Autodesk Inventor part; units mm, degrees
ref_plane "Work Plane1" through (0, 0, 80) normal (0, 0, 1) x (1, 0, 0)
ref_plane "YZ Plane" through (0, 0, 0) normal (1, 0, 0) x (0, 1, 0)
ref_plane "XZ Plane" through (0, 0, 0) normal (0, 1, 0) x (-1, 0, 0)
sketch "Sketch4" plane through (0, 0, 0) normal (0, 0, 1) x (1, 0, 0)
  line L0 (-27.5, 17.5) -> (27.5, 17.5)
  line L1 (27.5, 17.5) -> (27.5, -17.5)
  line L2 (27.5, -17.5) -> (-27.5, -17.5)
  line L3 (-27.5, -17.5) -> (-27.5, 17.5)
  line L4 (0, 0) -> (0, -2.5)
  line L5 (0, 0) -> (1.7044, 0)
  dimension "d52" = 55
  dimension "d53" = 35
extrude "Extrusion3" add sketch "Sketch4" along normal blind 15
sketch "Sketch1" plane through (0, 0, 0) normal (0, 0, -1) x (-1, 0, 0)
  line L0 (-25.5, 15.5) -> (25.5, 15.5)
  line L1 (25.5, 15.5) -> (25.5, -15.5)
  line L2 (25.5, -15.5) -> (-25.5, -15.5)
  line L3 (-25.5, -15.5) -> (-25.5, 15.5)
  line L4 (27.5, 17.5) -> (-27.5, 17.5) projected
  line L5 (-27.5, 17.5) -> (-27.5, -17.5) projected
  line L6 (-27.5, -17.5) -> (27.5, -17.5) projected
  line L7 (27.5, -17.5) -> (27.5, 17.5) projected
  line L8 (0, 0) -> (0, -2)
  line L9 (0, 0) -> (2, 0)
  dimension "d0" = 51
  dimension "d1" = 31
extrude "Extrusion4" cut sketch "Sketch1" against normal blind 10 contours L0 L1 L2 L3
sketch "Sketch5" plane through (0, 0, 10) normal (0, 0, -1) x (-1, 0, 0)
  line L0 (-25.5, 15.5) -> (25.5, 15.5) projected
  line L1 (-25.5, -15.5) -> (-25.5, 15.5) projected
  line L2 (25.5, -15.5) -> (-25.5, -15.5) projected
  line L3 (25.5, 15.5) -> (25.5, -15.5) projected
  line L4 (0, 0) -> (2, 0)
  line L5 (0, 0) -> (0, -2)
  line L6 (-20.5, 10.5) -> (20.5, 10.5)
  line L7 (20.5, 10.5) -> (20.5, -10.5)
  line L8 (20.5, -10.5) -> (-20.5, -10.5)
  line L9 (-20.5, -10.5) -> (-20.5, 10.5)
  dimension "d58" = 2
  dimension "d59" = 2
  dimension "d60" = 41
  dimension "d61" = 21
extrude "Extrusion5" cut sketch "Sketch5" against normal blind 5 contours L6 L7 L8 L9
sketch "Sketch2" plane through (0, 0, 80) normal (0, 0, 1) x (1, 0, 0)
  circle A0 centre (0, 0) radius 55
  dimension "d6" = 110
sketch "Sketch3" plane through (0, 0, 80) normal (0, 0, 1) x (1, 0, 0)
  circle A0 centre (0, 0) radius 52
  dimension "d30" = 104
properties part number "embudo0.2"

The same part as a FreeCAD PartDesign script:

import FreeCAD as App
import Part
import Sketcher

V = App.Vector


def add_polygon(sketch, points):
    """Adds a closed chain of lines whose ends are joined by coincident constraints."""
    first, n = sketch.GeometryCount, len(points)
    for a, b in zip(points, points[1:] + points[:1]):
        sketch.addGeometry(Part.LineSegment(App.Vector(*a, 0), App.Vector(*b, 0)), False)
    for i in range(n):
        sketch.addConstraint(Sketcher.Constraint("Coincident", first + i, 2, first + (i + 1) % n, 1))

doc = App.newDocument("Part")
body = doc.addObject("PartDesign::Body", "Body")

# Sketch on XY plane
sketch1 = body.newObject("Sketcher::SketchObject", "Sketch")
sketch1.AttachmentSupport = (doc.getObject("XY_Plane"), [""])
sketch1.MapMode = "FlatFace"
add_polygon(sketch1, [(27.5, 17.5), (-27.5, 17.5), (-27.5, -17.5), (27.5, -17.5)])  # lines 0-3
sketch1.addConstraint(Sketcher.Constraint("Horizontal", 0))
sketch1.addConstraint(Sketcher.Constraint("Vertical", 1))
sketch1.addConstraint(Sketcher.Constraint("Horizontal", 2))
sketch1.addConstraint(Sketcher.Constraint("Vertical", 3))
sketch1.addConstraint(Sketcher.Constraint("Symmetric", 0, 2, 2, 2, -1, 1))
sketch1.addConstraint(Sketcher.Constraint("DistanceX", 0, 2, 0, 1, 55.0))
sketch1.addConstraint(Sketcher.Constraint("DistanceY", 1, 2, 1, 1, 35.0))
pad1 = body.newObject("PartDesign::Pad", "Pad")
pad1.Profile = sketch1
pad1.Length = 15

# Sketch on XY plane
sketch2 = body.newObject("Sketcher::SketchObject", "Sketch001")
sketch2.AttachmentSupport = (doc.getObject("XY_Plane"), [""])
sketch2.MapMode = "FlatFace"
add_polygon(sketch2, [(-25.5, 15.5), (25.5, 15.5), (25.5, -15.5), (-25.5, -15.5)])  # lines 0-3
sketch2.addConstraint(Sketcher.Constraint("Horizontal", 0))
sketch2.addConstraint(Sketcher.Constraint("Vertical", 1))
sketch2.addConstraint(Sketcher.Constraint("Horizontal", 2))
sketch2.addConstraint(Sketcher.Constraint("Vertical", 3))
sketch2.addConstraint(Sketcher.Constraint("Symmetric", 0, 2, 2, 2, -1, 1))
sketch2.addConstraint(Sketcher.Constraint("DistanceX", 0, 1, 0, 2, 51.0))
sketch2.addConstraint(Sketcher.Constraint("DistanceY", 1, 2, 1, 1, 31.0))
pocket1 = body.newObject("PartDesign::Pocket", "Pocket")
pocket1.Profile = sketch2
pocket1.Length = 10
pocket1.Reversed = True

# Sketch on XY plane
sketch3 = body.newObject("Sketcher::SketchObject", "Sketch002")
sketch3.AttachmentSupport = (doc.getObject("XY_Plane"), [""])
sketch3.MapMode = "FlatFace"
sketch3.AttachmentOffset = App.Placement(V(0, 0, 10), App.Rotation())
add_polygon(sketch3, [(-20.5, 10.5), (20.5, 10.5), (20.5, -10.5), (-20.5, -10.5)])  # lines 0-3
sketch3.addConstraint(Sketcher.Constraint("Horizontal", 0))
sketch3.addConstraint(Sketcher.Constraint("Vertical", 1))
sketch3.addConstraint(Sketcher.Constraint("Horizontal", 2))
sketch3.addConstraint(Sketcher.Constraint("Vertical", 3))
sketch3.addConstraint(Sketcher.Constraint("Symmetric", 0, 2, 2, 2, -1, 1))
sketch3.addConstraint(Sketcher.Constraint("DistanceX", 0, 1, 0, 2, 41.0))
sketch3.addConstraint(Sketcher.Constraint("DistanceY", 1, 2, 1, 1, 21.0))
pocket2 = body.newObject("PartDesign::Pocket", "Pocket001")
pocket2.Profile = sketch3
pocket2.Length = 5
pocket2.Reversed = True

doc.recompute()
